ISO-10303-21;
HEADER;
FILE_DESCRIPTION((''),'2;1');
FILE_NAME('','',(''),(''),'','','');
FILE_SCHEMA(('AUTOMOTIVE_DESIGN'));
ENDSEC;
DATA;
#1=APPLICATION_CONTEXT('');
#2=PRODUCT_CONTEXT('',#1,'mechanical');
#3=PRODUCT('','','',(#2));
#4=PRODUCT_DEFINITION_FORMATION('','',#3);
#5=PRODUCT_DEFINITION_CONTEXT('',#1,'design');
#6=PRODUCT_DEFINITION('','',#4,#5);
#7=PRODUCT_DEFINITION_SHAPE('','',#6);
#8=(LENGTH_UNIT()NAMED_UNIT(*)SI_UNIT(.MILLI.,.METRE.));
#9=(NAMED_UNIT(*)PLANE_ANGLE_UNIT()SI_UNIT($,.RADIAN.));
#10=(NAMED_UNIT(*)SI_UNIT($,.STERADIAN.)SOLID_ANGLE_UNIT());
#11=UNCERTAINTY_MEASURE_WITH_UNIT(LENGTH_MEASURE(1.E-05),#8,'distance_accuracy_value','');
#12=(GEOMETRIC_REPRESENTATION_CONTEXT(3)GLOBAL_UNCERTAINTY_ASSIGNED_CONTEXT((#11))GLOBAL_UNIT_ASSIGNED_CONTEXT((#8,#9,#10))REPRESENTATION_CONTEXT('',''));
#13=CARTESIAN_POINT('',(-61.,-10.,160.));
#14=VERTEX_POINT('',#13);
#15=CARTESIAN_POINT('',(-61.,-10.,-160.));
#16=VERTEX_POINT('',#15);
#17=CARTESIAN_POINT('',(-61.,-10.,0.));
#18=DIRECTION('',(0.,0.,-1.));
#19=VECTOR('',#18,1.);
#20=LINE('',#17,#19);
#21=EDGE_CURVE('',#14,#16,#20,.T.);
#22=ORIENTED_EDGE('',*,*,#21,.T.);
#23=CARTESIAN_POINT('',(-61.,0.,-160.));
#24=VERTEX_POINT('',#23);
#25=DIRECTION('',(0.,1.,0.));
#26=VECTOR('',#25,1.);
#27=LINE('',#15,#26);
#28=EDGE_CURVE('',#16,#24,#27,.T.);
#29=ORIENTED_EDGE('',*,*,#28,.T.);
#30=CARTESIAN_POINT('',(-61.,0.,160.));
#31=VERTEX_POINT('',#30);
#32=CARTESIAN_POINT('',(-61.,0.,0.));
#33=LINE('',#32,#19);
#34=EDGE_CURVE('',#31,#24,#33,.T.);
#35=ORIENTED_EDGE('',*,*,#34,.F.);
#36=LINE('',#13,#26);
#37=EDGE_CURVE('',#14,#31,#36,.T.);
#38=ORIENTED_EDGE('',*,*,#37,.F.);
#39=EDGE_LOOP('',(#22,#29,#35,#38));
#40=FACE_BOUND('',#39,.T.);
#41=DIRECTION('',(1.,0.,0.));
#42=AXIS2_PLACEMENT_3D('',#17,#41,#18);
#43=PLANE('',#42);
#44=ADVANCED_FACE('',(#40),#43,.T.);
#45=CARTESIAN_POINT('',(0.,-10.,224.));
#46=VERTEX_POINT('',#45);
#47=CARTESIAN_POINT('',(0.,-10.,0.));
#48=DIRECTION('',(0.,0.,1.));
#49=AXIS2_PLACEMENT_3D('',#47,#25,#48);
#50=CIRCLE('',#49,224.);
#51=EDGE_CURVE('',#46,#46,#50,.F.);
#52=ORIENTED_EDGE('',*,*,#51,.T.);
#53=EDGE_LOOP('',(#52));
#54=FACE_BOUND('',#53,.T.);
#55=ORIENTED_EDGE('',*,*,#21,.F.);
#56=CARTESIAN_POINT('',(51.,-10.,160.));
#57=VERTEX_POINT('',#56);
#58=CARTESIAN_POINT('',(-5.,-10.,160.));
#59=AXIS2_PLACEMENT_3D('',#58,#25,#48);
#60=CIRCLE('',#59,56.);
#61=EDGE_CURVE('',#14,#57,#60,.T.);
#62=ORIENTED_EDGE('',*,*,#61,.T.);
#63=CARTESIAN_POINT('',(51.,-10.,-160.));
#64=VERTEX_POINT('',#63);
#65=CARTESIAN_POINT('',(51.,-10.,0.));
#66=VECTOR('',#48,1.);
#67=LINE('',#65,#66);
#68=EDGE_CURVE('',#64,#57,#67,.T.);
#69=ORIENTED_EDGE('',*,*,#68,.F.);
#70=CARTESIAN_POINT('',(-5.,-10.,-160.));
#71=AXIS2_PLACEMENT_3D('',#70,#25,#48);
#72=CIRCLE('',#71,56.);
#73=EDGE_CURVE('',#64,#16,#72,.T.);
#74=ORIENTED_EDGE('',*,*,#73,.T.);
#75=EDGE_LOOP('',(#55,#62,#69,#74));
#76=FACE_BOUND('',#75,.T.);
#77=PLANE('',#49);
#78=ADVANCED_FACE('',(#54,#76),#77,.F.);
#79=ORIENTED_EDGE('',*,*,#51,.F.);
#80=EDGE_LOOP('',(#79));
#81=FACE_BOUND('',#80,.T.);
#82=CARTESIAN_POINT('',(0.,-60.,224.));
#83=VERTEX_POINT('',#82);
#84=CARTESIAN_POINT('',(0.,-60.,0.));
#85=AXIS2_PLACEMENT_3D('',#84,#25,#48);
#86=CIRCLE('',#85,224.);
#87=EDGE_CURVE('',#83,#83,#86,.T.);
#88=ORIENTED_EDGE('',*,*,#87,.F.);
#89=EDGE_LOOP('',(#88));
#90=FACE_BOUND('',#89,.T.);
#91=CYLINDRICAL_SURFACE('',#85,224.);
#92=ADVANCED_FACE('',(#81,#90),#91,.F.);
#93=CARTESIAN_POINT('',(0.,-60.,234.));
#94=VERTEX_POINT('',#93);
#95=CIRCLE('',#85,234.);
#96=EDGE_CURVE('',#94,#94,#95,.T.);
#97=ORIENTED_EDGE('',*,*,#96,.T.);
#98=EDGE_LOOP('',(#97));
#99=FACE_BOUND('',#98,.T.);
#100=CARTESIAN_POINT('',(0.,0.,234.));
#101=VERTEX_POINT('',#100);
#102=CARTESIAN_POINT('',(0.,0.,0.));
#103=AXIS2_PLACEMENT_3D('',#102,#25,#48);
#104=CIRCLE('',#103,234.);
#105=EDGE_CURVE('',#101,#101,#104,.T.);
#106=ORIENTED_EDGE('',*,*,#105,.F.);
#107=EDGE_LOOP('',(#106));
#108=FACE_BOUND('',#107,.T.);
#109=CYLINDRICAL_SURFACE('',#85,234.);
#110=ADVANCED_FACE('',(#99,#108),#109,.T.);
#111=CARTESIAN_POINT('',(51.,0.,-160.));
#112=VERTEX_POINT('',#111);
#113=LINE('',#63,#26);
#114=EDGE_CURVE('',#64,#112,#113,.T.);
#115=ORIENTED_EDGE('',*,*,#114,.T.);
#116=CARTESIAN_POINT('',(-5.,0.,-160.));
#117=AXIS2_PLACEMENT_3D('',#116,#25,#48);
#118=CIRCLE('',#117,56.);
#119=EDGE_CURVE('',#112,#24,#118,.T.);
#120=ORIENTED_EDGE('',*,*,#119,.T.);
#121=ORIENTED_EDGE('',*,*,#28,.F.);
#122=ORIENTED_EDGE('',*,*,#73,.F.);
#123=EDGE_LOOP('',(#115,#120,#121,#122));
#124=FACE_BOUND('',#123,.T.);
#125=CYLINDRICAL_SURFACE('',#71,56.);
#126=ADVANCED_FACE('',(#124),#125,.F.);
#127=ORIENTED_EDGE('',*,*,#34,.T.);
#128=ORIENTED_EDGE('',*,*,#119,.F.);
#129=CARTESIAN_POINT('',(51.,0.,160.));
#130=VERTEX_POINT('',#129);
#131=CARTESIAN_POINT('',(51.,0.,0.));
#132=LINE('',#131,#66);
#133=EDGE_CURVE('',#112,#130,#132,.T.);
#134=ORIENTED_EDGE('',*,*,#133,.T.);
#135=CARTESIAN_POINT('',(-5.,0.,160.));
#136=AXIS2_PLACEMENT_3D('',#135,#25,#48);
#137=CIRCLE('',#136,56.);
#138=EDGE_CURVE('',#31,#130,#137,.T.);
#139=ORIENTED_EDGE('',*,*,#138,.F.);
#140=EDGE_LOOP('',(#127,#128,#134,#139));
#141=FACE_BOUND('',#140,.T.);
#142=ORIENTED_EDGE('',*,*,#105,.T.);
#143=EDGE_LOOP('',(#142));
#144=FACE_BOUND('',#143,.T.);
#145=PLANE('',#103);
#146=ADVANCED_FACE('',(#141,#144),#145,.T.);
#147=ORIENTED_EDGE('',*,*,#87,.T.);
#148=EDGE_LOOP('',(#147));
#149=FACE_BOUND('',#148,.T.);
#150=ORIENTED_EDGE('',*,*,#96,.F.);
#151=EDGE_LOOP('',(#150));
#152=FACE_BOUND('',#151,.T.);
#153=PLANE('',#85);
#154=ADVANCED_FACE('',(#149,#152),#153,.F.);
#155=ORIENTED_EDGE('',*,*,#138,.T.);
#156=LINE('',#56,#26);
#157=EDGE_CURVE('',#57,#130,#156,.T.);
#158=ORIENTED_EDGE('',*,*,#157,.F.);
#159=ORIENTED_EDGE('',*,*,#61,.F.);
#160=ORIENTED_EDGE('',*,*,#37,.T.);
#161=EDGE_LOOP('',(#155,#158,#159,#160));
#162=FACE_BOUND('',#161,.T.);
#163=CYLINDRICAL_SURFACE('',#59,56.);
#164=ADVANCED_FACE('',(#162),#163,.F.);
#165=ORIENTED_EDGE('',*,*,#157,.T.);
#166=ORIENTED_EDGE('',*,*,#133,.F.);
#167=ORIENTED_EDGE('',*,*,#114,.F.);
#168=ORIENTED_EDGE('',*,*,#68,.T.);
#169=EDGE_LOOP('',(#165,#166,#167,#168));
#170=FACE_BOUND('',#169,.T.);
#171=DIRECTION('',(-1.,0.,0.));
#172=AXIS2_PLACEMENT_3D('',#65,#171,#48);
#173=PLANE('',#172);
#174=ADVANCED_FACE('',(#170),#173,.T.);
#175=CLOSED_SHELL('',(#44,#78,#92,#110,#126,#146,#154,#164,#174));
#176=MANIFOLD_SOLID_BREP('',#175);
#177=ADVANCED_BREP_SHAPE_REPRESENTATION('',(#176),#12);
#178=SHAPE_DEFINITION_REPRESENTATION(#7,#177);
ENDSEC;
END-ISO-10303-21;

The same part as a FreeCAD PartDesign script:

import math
import FreeCAD as App
import Part
import Sketcher

doc = App.newDocument("Part")
body = doc.addObject("PartDesign::Body", "Body")

# Sketch on XZ plane
sketch1 = body.newObject("Sketcher::SketchObject", "Sketch")
sketch1.AttachmentSupport = (doc.getObject("XZ_Plane"), [""])
sketch1.MapMode = "FlatFace"
sketch1.addGeometry([
    Part.Circle(App.Vector(0, 0, 0), App.Vector(0, 0, 1), 234),
    Part.Circle(App.Vector(0, 0, 0), App.Vector(0, 0, 1), 224),
], False)
sketch1.addConstraint([
    Sketcher.Constraint("Coincident", 0, 3, -1, 1),
    Sketcher.Constraint("Coincident", 1, 3, -1, 1),
    Sketcher.Constraint("Diameter", 0, 468.0),
    Sketcher.Constraint("Diameter", 1, 448.0),
])
pad1 = body.newObject("PartDesign::Pad", "Pad")
pad1.Profile = sketch1
pad1.Length = 60

# Sketch on XZ plane
sketch2 = body.newObject("Sketcher::SketchObject", "Sketch001")
sketch2.AttachmentSupport = (doc.getObject("XZ_Plane"), [""])
sketch2.MapMode = "FlatFace"
sketch2.addGeometry([
    Part.Circle(App.Vector(0, 0, 0), App.Vector(0, 0, 1), 224),  # 0
    Part.ArcOfCircle(Part.Circle(App.Vector(-5, -160, 0), App.Vector(0, 0, 1), 56), math.radians(180), math.radians(360)),  # 1
    Part.LineSegment(App.Vector(51, -160, 0), App.Vector(51, 160, 0)),  # 2
    Part.ArcOfCircle(Part.Circle(App.Vector(-5, 160, 0), App.Vector(0, 0, 1), 56), math.radians(0), math.radians(180)),  # 3
    Part.LineSegment(App.Vector(-61, 160, 0), App.Vector(-61, -160, 0)),  # 4
], False)
sketch2.addConstraint([
    Sketcher.Constraint("Tangent", 1, 2, 2, 1),
    Sketcher.Constraint("Tangent", 2, 2, 3, 1),
    Sketcher.Constraint("Tangent", 3, 2, 4, 1),
    Sketcher.Constraint("Tangent", 4, 2, 1, 1),
    Sketcher.Constraint("Vertical", 2),
    Sketcher.Constraint("Vertical", 4),
    Sketcher.Constraint("Coincident", 0, 3, -1, 1),
    Sketcher.Constraint("Diameter", 0, 448.0),
    Sketcher.Constraint("Radius", 1, 56.0),
    Sketcher.Constraint("DistanceY", 2, 1, 2, 2, 320.0),
    Sketcher.Constraint("DistanceX", 1, 3, -1, 1, 5.0),
    Sketcher.Constraint("DistanceY", 1, 3, -1, 1, 160.0),
])
pad2 = body.newObject("PartDesign::Pad", "Pad001")
pad2.Profile = sketch2
pad2.Length = 10

doc.recompute()
